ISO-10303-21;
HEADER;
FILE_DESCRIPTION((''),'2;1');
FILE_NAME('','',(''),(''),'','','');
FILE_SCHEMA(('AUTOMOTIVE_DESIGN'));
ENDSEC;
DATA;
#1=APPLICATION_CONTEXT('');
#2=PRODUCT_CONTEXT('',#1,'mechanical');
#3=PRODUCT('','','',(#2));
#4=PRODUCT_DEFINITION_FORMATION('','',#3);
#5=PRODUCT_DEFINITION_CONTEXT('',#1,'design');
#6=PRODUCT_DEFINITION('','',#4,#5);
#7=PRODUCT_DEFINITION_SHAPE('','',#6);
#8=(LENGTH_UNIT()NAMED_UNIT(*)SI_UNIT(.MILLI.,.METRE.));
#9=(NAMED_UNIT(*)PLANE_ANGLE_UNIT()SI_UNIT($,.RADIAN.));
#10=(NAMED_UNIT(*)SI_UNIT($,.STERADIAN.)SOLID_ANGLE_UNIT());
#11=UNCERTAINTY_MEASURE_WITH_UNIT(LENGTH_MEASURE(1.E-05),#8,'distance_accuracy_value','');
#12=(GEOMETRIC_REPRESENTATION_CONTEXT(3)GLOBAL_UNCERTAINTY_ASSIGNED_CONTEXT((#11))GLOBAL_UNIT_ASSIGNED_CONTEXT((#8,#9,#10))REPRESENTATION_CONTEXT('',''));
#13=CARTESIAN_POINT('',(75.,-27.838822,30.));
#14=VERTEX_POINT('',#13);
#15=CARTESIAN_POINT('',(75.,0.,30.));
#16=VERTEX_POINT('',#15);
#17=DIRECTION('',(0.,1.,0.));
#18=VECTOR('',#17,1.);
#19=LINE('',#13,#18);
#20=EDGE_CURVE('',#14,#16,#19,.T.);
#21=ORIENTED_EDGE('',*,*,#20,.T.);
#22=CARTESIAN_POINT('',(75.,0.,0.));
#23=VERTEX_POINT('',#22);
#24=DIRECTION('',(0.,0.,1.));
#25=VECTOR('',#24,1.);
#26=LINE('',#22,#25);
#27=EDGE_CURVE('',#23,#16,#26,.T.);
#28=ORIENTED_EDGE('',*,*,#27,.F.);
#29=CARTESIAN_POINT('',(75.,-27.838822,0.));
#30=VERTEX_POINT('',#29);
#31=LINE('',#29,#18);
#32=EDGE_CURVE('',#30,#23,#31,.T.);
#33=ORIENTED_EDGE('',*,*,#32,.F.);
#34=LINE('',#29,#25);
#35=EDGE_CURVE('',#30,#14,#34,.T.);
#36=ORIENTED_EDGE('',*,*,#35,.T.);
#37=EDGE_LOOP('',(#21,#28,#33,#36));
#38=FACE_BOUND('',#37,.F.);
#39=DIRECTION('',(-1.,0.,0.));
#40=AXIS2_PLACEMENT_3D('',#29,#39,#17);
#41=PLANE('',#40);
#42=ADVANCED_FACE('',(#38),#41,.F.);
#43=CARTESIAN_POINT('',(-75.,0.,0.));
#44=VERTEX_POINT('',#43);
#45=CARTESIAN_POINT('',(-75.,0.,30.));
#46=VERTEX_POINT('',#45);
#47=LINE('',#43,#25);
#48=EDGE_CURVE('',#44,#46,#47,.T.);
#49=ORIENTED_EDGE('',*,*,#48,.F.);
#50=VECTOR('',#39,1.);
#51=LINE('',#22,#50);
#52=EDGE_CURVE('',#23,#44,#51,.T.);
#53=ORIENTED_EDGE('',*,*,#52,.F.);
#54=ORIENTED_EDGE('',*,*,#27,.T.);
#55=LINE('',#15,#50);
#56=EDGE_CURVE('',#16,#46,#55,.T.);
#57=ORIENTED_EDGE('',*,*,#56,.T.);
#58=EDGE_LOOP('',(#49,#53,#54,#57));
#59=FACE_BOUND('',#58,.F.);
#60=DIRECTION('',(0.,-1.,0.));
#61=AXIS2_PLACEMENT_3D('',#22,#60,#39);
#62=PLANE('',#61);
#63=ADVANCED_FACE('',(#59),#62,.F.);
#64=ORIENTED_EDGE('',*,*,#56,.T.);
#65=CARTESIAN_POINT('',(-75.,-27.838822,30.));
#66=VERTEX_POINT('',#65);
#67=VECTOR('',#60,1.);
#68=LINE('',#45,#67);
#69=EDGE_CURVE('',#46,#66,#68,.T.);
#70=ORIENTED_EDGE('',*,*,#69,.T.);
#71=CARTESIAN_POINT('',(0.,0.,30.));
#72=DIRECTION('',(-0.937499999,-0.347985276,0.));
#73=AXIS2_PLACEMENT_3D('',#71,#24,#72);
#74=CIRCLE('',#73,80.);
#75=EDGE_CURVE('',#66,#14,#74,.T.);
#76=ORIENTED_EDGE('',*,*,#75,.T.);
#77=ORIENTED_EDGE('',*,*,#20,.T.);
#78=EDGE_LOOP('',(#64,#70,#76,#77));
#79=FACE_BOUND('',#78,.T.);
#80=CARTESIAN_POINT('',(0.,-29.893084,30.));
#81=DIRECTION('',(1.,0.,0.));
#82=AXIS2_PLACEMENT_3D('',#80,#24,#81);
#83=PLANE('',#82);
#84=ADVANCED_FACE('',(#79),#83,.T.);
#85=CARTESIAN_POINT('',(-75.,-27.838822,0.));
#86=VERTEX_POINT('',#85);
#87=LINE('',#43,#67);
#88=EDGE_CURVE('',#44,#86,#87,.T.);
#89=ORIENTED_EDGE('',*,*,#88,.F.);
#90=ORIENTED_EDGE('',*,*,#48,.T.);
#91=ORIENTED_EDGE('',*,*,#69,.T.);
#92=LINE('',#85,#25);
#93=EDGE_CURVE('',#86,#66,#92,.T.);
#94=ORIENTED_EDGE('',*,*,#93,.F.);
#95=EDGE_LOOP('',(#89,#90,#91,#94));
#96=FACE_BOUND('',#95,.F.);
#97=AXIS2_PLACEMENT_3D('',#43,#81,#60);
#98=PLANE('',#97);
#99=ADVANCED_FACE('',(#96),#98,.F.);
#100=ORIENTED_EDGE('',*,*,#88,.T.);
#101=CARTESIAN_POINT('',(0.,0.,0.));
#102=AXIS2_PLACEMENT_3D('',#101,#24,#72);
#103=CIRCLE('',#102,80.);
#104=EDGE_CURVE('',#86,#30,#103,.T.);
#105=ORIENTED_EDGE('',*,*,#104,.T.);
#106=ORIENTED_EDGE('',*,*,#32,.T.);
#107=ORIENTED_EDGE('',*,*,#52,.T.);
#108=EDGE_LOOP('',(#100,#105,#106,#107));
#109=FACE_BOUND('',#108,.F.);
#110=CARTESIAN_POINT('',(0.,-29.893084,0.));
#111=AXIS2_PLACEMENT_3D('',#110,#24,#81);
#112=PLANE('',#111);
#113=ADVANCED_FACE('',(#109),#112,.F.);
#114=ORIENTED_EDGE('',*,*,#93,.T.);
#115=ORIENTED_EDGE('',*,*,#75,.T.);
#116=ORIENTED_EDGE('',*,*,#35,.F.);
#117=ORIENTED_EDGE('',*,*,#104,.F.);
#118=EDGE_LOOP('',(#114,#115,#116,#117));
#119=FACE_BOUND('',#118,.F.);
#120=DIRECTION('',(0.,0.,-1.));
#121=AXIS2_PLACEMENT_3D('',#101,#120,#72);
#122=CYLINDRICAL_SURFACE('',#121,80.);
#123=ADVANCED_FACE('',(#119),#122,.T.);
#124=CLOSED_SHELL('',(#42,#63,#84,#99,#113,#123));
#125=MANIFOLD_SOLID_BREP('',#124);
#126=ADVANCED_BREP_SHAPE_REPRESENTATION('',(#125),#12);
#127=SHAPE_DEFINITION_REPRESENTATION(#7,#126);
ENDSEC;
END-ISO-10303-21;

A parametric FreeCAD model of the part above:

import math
import FreeCAD as App
import Part
import Sketcher
from FreeCAD import Vector
Q = App.Units.Quantity

doc = App.newDocument("Part")
body = doc.addObject("PartDesign::Body", "Body")

# Sketch on XY plane
sketch1 = body.newObject("Sketcher::SketchObject", "Sketch")
sketch1.AttachmentSupport = (doc.getObject("XY_Plane"), [""])
sketch1.MapMode = "FlatFace"
sketch1.addGeometry([
    Part.LineSegment(Vector(-75, 0, 0), Vector(-75, -28, 0)),
    Part.ArcOfCircle(Part.Circle(Vector(0, 0, 0), Vector(0, 0, 1), 80), math.radians(-160), math.radians(-20)),
    Part.LineSegment(Vector(75, -28, 0), Vector(75, 0, 0)),
    Part.LineSegment(Vector(75, 0, 0), Vector(-75, 0, 0)),
], False)
sketch1.addConstraint([
    Sketcher.Constraint("Coincident", 0, 2, 1, 1),
    Sketcher.Constraint("Coincident", 1, 2, 2, 1),
    Sketcher.Constraint("Coincident", 2, 2, 3, 1),
    Sketcher.Constraint("Coincident", 3, 2, 0, 1),
    Sketcher.Constraint("Vertical", 0),
    Sketcher.Constraint("Vertical", 2),
    Sketcher.Constraint("Horizontal", 3),
    Sketcher.Constraint("Coincident", 1, 3, -1, 1),
    Sketcher.Constraint("Symmetric", 2, 2, 3, 2, -1, 1),
    Sketcher.Constraint("Radius", 1, Q("80 mm")),
    Sketcher.Constraint("DistanceX", 3, 2, 3, 1, Q("150 mm")),
])
pad1 = body.newObject("PartDesign::Pad", "Pad")
pad1.Profile = sketch1
pad1.Length = 30

doc.recompute()
